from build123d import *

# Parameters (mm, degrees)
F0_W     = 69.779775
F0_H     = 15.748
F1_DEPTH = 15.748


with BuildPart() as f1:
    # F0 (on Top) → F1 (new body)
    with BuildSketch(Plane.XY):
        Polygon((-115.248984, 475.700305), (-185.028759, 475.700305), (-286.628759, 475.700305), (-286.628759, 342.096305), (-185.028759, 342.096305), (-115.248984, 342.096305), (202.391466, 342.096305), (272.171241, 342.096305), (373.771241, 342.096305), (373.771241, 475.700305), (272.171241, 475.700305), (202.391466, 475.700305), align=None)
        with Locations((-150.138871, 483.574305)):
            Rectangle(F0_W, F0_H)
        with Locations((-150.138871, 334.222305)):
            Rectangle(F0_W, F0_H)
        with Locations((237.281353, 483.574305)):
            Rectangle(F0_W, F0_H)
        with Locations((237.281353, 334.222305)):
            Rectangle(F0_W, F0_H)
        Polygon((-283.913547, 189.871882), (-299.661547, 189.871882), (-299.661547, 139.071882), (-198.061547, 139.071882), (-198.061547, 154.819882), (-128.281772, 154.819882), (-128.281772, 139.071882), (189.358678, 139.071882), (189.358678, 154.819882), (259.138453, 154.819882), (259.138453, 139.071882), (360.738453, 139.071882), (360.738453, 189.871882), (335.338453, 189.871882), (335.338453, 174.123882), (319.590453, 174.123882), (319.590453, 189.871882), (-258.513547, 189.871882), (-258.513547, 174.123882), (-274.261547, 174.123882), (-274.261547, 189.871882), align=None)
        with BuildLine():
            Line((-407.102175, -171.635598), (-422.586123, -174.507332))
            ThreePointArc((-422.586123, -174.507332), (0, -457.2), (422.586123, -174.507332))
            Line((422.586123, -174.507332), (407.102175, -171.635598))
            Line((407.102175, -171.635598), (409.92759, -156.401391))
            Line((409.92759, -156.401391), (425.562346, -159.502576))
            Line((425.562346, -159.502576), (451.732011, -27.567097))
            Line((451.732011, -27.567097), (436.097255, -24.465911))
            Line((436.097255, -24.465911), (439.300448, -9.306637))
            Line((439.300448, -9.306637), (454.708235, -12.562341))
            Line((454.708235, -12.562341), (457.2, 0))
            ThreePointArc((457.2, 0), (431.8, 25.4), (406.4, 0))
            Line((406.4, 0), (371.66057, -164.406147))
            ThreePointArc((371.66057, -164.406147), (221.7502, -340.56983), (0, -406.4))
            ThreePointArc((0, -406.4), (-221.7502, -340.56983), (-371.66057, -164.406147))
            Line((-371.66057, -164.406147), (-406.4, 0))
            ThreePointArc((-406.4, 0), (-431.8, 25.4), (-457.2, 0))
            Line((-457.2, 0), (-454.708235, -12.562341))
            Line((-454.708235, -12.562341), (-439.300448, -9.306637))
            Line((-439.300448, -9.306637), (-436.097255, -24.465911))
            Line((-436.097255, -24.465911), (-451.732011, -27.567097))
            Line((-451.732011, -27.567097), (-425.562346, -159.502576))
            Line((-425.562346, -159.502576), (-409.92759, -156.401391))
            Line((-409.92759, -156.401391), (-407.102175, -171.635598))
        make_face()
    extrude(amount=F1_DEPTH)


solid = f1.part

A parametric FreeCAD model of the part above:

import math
import FreeCAD as App
import Part
import Sketcher

V = App.Vector
Q = App.Units.Quantity

doc = App.newDocument("Part")
params = doc.addObject("Spreadsheet::Sheet", "Params")
for row, (alias, value) in enumerate([
    ("sketch1_radius", "18 in"),
    ("sketch1_radius2", "1 in"),
    ("sketch1_radius3", "16 in"),
    ("sketch1_width", "4 in"),
    ("sketch1_width2", "1 in"),
    ("pad1_length", "0.62 in"),
], start=1):
    params.set(f"A{row}", alias)
    params.set(f"B{row}", "=" + value)
    params.setAlias(f"B{row}", alias)

body = doc.addObject("PartDesign::Body", "Body")
body.AllowCompound = True

sketch1 = body.newObject("Sketcher::SketchObject", "Sketch")
sketch1.AttachmentSupport = (doc.getObject("XY_Plane"), [""])
sketch1.MapMode = "FlatFace"
sketch1.addGeometry([
    Part.LineSegment(V(-287, 476, 0), V(-287, 342, 0)),
    Part.LineSegment(V(-287, 342, 0), V(-185, 342, 0)),
    Part.LineSegment(V(-185, 342, 0), V(-185, 326, 0)),
    Part.LineSegment(V(-185, 326, 0), V(-115, 326, 0)),
    Part.LineSegment(V(-115, 326, 0), V(-115, 342, 0)),
    Part.LineSegment(V(-115, 342, 0), V(202, 342, 0)),
    Part.LineSegment(V(202, 342, 0), V(202, 326, 0)),
    Part.LineSegment(V(202, 326, 0), V(272, 326, 0)),
    Part.LineSegment(V(272, 326, 0), V(272, 342, 0)),
    Part.LineSegment(V(272, 342, 0), V(374, 342, 0)),
    Part.LineSegment(V(374, 342, 0), V(374, 476, 0)),
    Part.LineSegment(V(374, 476, 0), V(272, 476, 0)),
    Part.LineSegment(V(272, 476, 0), V(272, 491, 0)),
    Part.LineSegment(V(272, 491, 0), V(202, 491, 0)),
    Part.LineSegment(V(202, 491, 0), V(202, 476, 0)),
    Part.LineSegment(V(202, 476, 0), V(-115, 476, 0)),
    Part.LineSegment(V(-115, 476, 0), V(-115, 491, 0)),
    Part.LineSegment(V(-115, 491, 0), V(-185, 491, 0)),
    Part.LineSegment(V(-185, 491, 0), V(-185, 476, 0)),
    Part.LineSegment(V(-185, 476, 0), V(-287, 476, 0)),
    Part.LineSegment(V(-300, 190, 0), V(-300, 139, 0)),
    Part.LineSegment(V(-300, 139, 0), V(-198, 139, 0)),
    Part.LineSegment(V(-198, 139, 0), V(-198, 155, 0)),
    Part.LineSegment(V(-198, 155, 0), V(-128, 155, 0)),
    Part.LineSegment(V(-128, 155, 0), V(-128, 139, 0)),
    Part.LineSegment(V(-128, 139, 0), V(189, 139, 0)),
    Part.LineSegment(V(189, 139, 0), V(189, 155, 0)),
    Part.LineSegment(V(189, 155, 0), V(259, 155, 0)),
    Part.LineSegment(V(259, 155, 0), V(259, 139, 0)),
    Part.LineSegment(V(259, 139, 0), V(361, 139, 0)),
    Part.LineSegment(V(361, 139, 0), V(361, 190, 0)),
    Part.LineSegment(V(361, 190, 0), V(335, 190, 0)),
    Part.LineSegment(V(335, 190, 0), V(335, 174, 0)),
    Part.LineSegment(V(335, 174, 0), V(320, 174, 0)),
    Part.LineSegment(V(320, 174, 0), V(320, 190, 0)),
    Part.LineSegment(V(320, 190, 0), V(-259, 190, 0)),
    Part.LineSegment(V(-259, 190, 0), V(-259, 174, 0)),
    Part.LineSegment(V(-259, 174, 0), V(-274, 174, 0)),
    Part.LineSegment(V(-274, 174, 0), V(-274, 190, 0)),
    Part.LineSegment(V(-274, 190, 0), V(-300, 190, 0)),
    Part.LineSegment(V(-407, -172, 0), V(-423, -175, 0)),
    Part.ArcOfCircle(Part.Circle(V(0, 0, 0), V(0, 0, 1), 457), math.radians(-158), math.radians(-22)),
    Part.LineSegment(V(423, -175, 0), V(407, -172, 0)),
    Part.LineSegment(V(407, -172, 0), V(410, -156, 0)),
    Part.LineSegment(V(410, -156, 0), V(426, -160, 0)),
    Part.LineSegment(V(426, -160, 0), V(452, -28, 0)),
    Part.LineSegment(V(452, -28, 0), V(436, -24, 0)),
    Part.LineSegment(V(436, -24, 0), V(439, -9, 0)),
    Part.LineSegment(V(439, -9, 0), V(455, -13, 0)),
    Part.LineSegment(V(455, -13, 0), V(457, 0, 0)),
    Part.ArcOfCircle(Part.Circle(V(432, 0, 0), V(0, 0, 1), 25), math.radians(0), math.radians(180)),
    Part.LineSegment(V(406, 0, 0), V(372, -164, 0)),
    Part.ArcOfCircle(Part.Circle(V(0, 0, 0), V(0, 0, 1), 406), math.radians(-90), math.radians(-24)),
    Part.ArcOfCircle(Part.Circle(V(0, 0, 0), V(0, 0, 1), 406), math.radians(-156), math.radians(-90)),
    Part.LineSegment(V(-372, -164, 0), V(-406, 0, 0)),
    Part.ArcOfCircle(Part.Circle(V(-432, 0, 0), V(0, 0, 1), 25), math.radians(0), math.radians(180)),
    Part.LineSegment(V(-457, 0, 0), V(-455, -13, 0)),
    Part.LineSegment(V(-455, -13, 0), V(-439, -9, 0)),
    Part.LineSegment(V(-439, -9, 0), V(-436, -24, 0)),
    Part.LineSegment(V(-436, -24, 0), V(-452, -28, 0)),
    Part.LineSegment(V(-452, -28, 0), V(-426, -160, 0)),
    Part.LineSegment(V(-426, -160, 0), V(-410, -156, 0)),
    Part.LineSegment(V(-410, -156, 0), V(-407, -172, 0)),
], False)
sketch1.addConstraint([
    Sketcher.Constraint("Coincident", 0, 2, 1, 1),
    Sketcher.Constraint("Coincident", 1, 2, 2, 1),
    Sketcher.Constraint("Coincident", 2, 2, 3, 1),
    Sketcher.Constraint("Coincident", 3, 2, 4, 1),
    Sketcher.Constraint("Coincident", 4, 2, 5, 1),
    Sketcher.Constraint("Coincident", 5, 2, 6, 1),
    Sketcher.Constraint("Coincident", 6, 2, 7, 1),
    Sketcher.Constraint("Coincident", 7, 2, 8, 1),
    Sketcher.Constraint("Coincident", 8, 2, 9, 1),
    Sketcher.Constraint("Coincident", 9, 2, 10, 1),
    Sketcher.Constraint("Coincident", 10, 2, 11, 1),
    Sketcher.Constraint("Coincident", 11, 2, 12, 1),
    Sketcher.Constraint("Coincident", 12, 2, 13, 1),
    Sketcher.Constraint("Coincident", 13, 2, 14, 1),
    Sketcher.Constraint("Coincident", 14, 2, 15, 1),
    Sketcher.Constraint("Coincident", 15, 2, 16, 1),
    Sketcher.Constraint("Coincident", 16, 2, 17, 1),
    Sketcher.Constraint("Coincident", 17, 2, 18, 1),
    Sketcher.Constraint("Coincident", 18, 2, 19, 1),
    Sketcher.Constraint("Coincident", 19, 2, 0, 1),
    Sketcher.Constraint("Coincident", 20, 2, 21, 1),
    Sketcher.Constraint("Coincident", 21, 2, 22, 1),
    Sketcher.Constraint("Coincident", 22, 2, 23, 1),
    Sketcher.Constraint("Coincident", 23, 2, 24, 1),
    Sketcher.Constraint("Coincident", 24, 2, 25, 1),
    Sketcher.Constraint("Coincident", 25, 2, 26, 1),
    Sketcher.Constraint("Coincident", 26, 2, 27, 1),
    Sketcher.Constraint("Coincident", 27, 2, 28, 1),
    Sketcher.Constraint("Coincident", 28, 2, 29, 1),
    Sketcher.Constraint("Coincident", 29, 2, 30, 1),
    Sketcher.Constraint("Coincident", 30, 2, 31, 1),
    Sketcher.Constraint("Coincident", 31, 2, 32, 1),
    Sketcher.Constraint("Coincident", 32, 2, 33, 1),
    Sketcher.Constraint("Coincident", 33, 2, 34, 1),
    Sketcher.Constraint("Coincident", 34, 2, 35, 1),
    Sketcher.Constraint("Coincident", 35, 2, 36, 1),
    Sketcher.Constraint("Coincident", 36, 2, 37, 1),
    Sketcher.Constraint("Coincident", 37, 2, 38, 1),
    Sketcher.Constraint("Coincident", 38, 2, 39, 1),
    Sketcher.Constraint("Coincident", 39, 2, 20, 1),
    Sketcher.Constraint("Coincident", 40, 2, 41, 1),
    Sketcher.Constraint("Coincident", 41, 2, 42, 1),
    Sketcher.Constraint("Coincident", 42, 2, 43, 1),
    Sketcher.Constraint("Coincident", 43, 2, 44, 1),
    Sketcher.Constraint("Coincident", 44, 2, 45, 1),
    Sketcher.Constraint("Coincident", 45, 2, 46, 1),
    Sketcher.Constraint("Coincident", 46, 2, 47, 1),
    Sketcher.Constraint("Coincident", 47, 2, 48, 1),
    Sketcher.Constraint("Coincident", 48, 2, 49, 1),
    Sketcher.Constraint("Coincident", 49, 2, 50, 1),
    Sketcher.Constraint("Coincident", 50, 2, 51, 1),
    Sketcher.Constraint("Coincident", 51, 2, 52, 2),
    Sketcher.Constraint("Tangent", 52, 1, 53, 2),
    Sketcher.Constraint("Coincident", 53, 1, 54, 1),
    Sketcher.Constraint("Coincident", 54, 2, 55, 1),
    Sketcher.Constraint("Coincident", 55, 2, 56, 1),
    Sketcher.Constraint("Coincident", 56, 2, 57, 1),
    Sketcher.Constraint("Coincident", 57, 2, 58, 1),
    Sketcher.Constraint("Coincident", 58, 2, 59, 1),
    Sketcher.Constraint("Coincident", 59, 2, 60, 1),
    Sketcher.Constraint("Coincident", 60, 2, 61, 1),
    Sketcher.Constraint("Coincident", 61, 2, 62, 1),
    Sketcher.Constraint("Coincident", 62, 2, 40, 1),
    Sketcher.Constraint("Vertical", 0),
    Sketcher.Constraint("Horizontal", 1),
    Sketcher.Constraint("Vertical", 2),
    Sketcher.Constraint("Horizontal", 3),
    Sketcher.Constraint("Vertical", 4),
    Sketcher.Constraint("Horizontal", 5),
    Sketcher.Constraint("Vertical", 6),
    Sketcher.Constraint("Horizontal", 7),
    Sketcher.Constraint("Vertical", 8),
    Sketcher.Constraint("Horizontal", 9),
    Sketcher.Constraint("Vertical", 10),
    Sketcher.Constraint("Horizontal", 11),
    Sketcher.Constraint("Vertical", 12),
    Sketcher.Constraint("Horizontal", 13),
    Sketcher.Constraint("Vertical", 14),
    Sketcher.Constraint("Horizontal", 15),
    Sketcher.Constraint("Vertical", 16),
    Sketcher.Constraint("Horizontal", 17),
    Sketcher.Constraint("Vertical", 18),
    Sketcher.Constraint("Horizontal", 19),
    Sketcher.Constraint("Vertical", 20),
    Sketcher.Constraint("Horizontal", 21),
    Sketcher.Constraint("Vertical", 22),
    Sketcher.Constraint("Horizontal", 23),
    Sketcher.Constraint("Vertical", 24),
    Sketcher.Constraint("Horizontal", 25),
    Sketcher.Constraint("Vertical", 26),
    Sketcher.Constraint("Horizontal", 27),
    Sketcher.Constraint("Vertical", 28),
    Sketcher.Constraint("Horizontal", 29),
    Sketcher.Constraint("Vertical", 30),
    Sketcher.Constraint("Horizontal", 31),
    Sketcher.Constraint("Vertical", 32),
    Sketcher.Constraint("Horizontal", 33),
    Sketcher.Constraint("Vertical", 34),
    Sketcher.Constraint("Horizontal", 35),
    Sketcher.Constraint("Vertical", 36),
    Sketcher.Constraint("Horizontal", 37),
    Sketcher.Constraint("Vertical", 38),
    Sketcher.Constraint("Horizontal", 39),
    Sketcher.Constraint("Coincident", 41, 3, -1, 1),
    Sketcher.Constraint("Coincident", 52, 3, -1, 1),
    Sketcher.Constraint("Equal", 52, 53),
    Sketcher.Constraint("Equal", 50, 55),
    Sketcher.Constraint("Symmetric", 50, 3, 55, 3, -1, 1),
    Sketcher.Constraint("Symmetric", 48, 2, 56, 2, -2),
    Sketcher.Constraint("Symmetric", 47, 2, 57, 2, -2),
    Sketcher.Constraint("Symmetric", 46, 2, 58, 2, -2),
    Sketcher.Constraint("Symmetric", 45, 2, 59, 2, -2),
    Sketcher.Constraint("Symmetric", 44, 2, 60, 2, -2),
    Sketcher.Constraint("Symmetric", 43, 2, 61, 2, -2),
    Sketcher.Constraint("Symmetric", 42, 2, 62, 2, -2),
    Sketcher.Constraint("PointOnObject", 50, 3, -1),
    Sketcher.Constraint("PointOnObject", 49, 2, -1),
    Sketcher.Constraint("PointOnObject", 50, 2, -1),
    Sketcher.Constraint("PointOnObject", 52, 1, -2),
    Sketcher.Constraint("PointOnObject", 54, 2, -1),
    Sketcher.Constraint("PointOnObject", 55, 2, -1),
    Sketcher.Constraint("Perpendicular", 42, 43),
    Sketcher.Constraint("Perpendicular", 44, 45),
    Sketcher.Constraint("Perpendicular", 45, 46),
    Sketcher.Constraint("Perpendicular", 47, 48),
    Sketcher.Constraint("Perpendicular", 46, 49),
    Sketcher.Constraint("Perpendicular", 48, 51),
    Sketcher.Constraint("Perpendicular", 54, 57),
    Sketcher.Constraint("Perpendicular", 40, 62),
    Sketcher.Constraint("Horizontal", 1, 2, 4, 2),
    Sketcher.Constraint("Horizontal", 3, 2, 6, 2),
    Sketcher.Constraint("Horizontal", 5, 2, 8, 2),
    Sketcher.Constraint("Horizontal", 11, 2, 14, 2),
    Sketcher.Constraint("Horizontal", 13, 2, 16, 2),
    Sketcher.Constraint("Horizontal", 15, 2, 18, 2),
    Sketcher.Constraint("Horizontal", 21, 2, 24, 2),
    Sketcher.Constraint("Horizontal", 23, 2, 26, 2),
    Sketcher.Constraint("Horizontal", 25, 2, 28, 2),
    Sketcher.Constraint("Horizontal", 31, 2, 34, 2),
    Sketcher.Constraint("Horizontal", 33, 2, 36, 2),
    Sketcher.Constraint("Horizontal", 35, 2, 38, 2),
    Sketcher.Constraint("Vertical", 8, 2, 11, 2),
    Sketcher.Constraint("Vertical", 6, 2, 13, 2),
    Sketcher.Constraint("Vertical", 4, 2, 15, 2),
    Sketcher.Constraint("Vertical", 2, 2, 17, 2),
    Sketcher.Constraint("Equal", 3, 7),
    Sketcher.Constraint("Equal", 1, 9),
    Sketcher.Constraint("Equal", 19, 21),
    Sketcher.Constraint("Equal", 17, 23),
    Sketcher.Constraint("Equal", 15, 25),
    Sketcher.Constraint("Equal", 23, 27),
    Sketcher.Constraint("Equal", 21, 29),
    Sketcher.Constraint("Equal", 33, 37),
    Sketcher.Constraint("Equal", 31, 39),
    Sketcher.Constraint("Equal", 37, 2),
    Sketcher.Constraint("Equal", 8, 12),
    Sketcher.Constraint("Equal", 18, 22),
    Sketcher.Constraint("Equal", 28, 32),
    Sketcher.Constraint("Equal", 44, 46),
    Sketcher.Constraint("Equal", 43, 47),
    Sketcher.Constraint("Equal", 42, 48),
    Sketcher.Constraint("Radius", 41, Q("18 in")),
    Sketcher.Constraint("Radius", 50, Q("1 in")),
    Sketcher.Constraint("Radius", 52, Q("16 in")),
    Sketcher.Constraint("DistanceX", 1, 1, 1, 2, Q("4 in")),
    Sketcher.Constraint("DistanceX", 31, 2, 31, 1, Q("1 in")),
    Sketcher.Constraint("DistanceY", 20, 2, 20, 1, Q("2 in")),
    Sketcher.Constraint("DistanceX", -1, 1, 50, 3, Q("17 in")),
    Sketcher.Constraint("DistanceX", 33, 2, 33, 1, Q("0.62 in")),
    Sketcher.Constraint("DistanceX", 35, 2, 35, 1, Q("22.76 in")),
    Sketcher.Constraint("DistanceY", 0, 2, 0, 1, Q("5.26 in")),
    Sketcher.Constraint("Distance", 40, Q("0.62 in")),
    Sketcher.Constraint("Distance", 43, Q("0.61 in")),
    Sketcher.Constraint("DistanceX", 5, 1, 5, 2, Q("317.640449 mm")),
    Sketcher.Constraint("Distance", 49, Q("12.80708 mm")),
    Sketcher.Constraint("DistanceX", 0, 2, -1, 1, Q("286.628759 mm")),
    Sketcher.Constraint("DistanceY", -1, 1, 20, 2, Q("139.071882 mm")),
    Sketcher.Constraint("DistanceX", 23, 2, -1, 1, Q("128.281772 mm")),
    Sketcher.Constraint("DistanceY", 40, 2, -1, 1, Q("174.507332 mm")),
    Sketcher.Constraint("DistanceX", -1, 1, 43, 2, Q("409.92759 mm")),
    Sketcher.Constraint("DistanceX", -1, 1, 45, 2, Q("451.732011 mm")),
    Sketcher.Constraint("DistanceY", 46, 2, -1, 1, Q("24.465911 mm")),
    Sketcher.Constraint("DistanceY", -1, 1, 0, 2, Q("342.096305 mm")),
])
sketch1.setExpression("Constraints[161]", "Params.sketch1_radius")
sketch1.setExpression("Constraints[162]", "Params.sketch1_radius2")
sketch1.setExpression("Constraints[163]", "Params.sketch1_radius3")
sketch1.setExpression("Constraints[164]", "Params.sketch1_width")
sketch1.setExpression("Constraints[165]", "Params.sketch1_width2")
pad1 = body.newObject("PartDesign::Pad", "Pad")
pad1.Profile = sketch1
pad1.setExpression("Length", "Params.pad1_length")

doc.recompute()
